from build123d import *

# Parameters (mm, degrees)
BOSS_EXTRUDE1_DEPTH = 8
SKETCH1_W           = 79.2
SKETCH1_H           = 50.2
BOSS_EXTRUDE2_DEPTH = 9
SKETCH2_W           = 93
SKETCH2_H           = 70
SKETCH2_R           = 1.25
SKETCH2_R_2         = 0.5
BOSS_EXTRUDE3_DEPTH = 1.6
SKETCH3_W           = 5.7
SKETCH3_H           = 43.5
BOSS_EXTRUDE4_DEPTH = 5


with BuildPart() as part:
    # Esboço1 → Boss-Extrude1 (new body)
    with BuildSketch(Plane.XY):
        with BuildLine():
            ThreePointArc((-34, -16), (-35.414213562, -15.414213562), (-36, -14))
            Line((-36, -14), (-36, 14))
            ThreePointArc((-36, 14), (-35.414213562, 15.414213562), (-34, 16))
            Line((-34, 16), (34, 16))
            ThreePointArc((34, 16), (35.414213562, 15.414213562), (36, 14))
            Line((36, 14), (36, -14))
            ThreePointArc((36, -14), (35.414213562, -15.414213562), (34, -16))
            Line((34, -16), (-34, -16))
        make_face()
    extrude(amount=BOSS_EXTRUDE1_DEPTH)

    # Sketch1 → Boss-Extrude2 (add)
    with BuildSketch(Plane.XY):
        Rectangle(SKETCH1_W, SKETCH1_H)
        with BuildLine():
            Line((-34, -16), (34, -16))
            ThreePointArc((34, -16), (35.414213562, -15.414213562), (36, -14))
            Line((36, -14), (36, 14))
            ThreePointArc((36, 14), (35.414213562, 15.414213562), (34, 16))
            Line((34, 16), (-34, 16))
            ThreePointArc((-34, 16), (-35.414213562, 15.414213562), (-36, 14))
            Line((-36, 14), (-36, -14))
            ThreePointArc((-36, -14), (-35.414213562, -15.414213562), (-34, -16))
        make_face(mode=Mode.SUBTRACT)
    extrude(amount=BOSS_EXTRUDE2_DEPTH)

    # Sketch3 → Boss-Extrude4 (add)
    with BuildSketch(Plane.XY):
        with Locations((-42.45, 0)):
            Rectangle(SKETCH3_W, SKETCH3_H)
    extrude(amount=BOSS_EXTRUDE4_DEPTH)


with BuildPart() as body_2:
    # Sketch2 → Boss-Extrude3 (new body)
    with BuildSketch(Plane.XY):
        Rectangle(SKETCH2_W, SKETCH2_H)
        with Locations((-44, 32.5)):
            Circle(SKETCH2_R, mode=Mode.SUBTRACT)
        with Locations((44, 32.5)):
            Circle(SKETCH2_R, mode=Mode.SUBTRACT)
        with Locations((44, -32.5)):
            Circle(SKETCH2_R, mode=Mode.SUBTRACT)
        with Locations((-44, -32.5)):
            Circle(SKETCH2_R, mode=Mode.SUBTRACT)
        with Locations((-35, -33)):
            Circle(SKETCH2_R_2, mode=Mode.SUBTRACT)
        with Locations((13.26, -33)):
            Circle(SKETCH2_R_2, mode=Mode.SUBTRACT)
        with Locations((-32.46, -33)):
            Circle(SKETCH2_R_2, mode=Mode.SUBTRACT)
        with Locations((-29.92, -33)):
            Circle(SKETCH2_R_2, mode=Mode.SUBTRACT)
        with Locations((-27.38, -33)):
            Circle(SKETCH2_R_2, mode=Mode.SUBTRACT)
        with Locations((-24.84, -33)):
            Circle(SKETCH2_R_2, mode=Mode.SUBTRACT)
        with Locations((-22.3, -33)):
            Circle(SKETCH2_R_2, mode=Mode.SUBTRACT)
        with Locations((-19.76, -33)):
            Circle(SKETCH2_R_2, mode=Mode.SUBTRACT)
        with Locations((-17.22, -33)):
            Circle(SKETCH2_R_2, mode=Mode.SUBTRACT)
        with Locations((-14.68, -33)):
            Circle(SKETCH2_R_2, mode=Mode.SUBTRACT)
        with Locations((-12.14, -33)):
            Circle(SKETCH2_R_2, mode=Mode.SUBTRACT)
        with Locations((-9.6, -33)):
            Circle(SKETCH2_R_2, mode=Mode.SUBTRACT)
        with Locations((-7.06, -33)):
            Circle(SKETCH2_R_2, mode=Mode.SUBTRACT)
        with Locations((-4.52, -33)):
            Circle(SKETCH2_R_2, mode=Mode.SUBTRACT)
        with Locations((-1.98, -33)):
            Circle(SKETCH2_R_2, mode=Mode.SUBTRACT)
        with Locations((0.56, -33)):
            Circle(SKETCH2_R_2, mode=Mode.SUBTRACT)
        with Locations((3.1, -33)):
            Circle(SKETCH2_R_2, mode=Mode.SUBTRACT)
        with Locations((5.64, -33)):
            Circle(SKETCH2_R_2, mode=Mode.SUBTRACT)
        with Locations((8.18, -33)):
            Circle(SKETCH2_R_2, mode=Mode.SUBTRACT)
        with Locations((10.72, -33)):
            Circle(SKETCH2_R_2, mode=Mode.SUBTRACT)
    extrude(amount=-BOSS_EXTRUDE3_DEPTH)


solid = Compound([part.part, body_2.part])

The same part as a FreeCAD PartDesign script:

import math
import FreeCAD as App
import Part
import Sketcher
from FreeCAD import Vector
Q = App.Units.Quantity


def add_polygon(sketch, points):
    """Adds a closed chain of lines whose ends are joined by coincident constraints."""
    first, n = sketch.GeometryCount, len(points)
    for a, b in zip(points, points[1:] + points[:1]):
        sketch.addGeometry(Part.LineSegment(App.Vector(*a, 0), App.Vector(*b, 0)), False)
    for i in range(n):
        sketch.addConstraint(Sketcher.Constraint("Coincident", first + i, 2, first + (i + 1) % n, 1))

doc = App.newDocument("Part")
body = doc.addObject("PartDesign::Body", "Body")

# Sketch on XY plane
sketch1 = body.newObject("Sketcher::SketchObject", "Sketch")
sketch1.AttachmentSupport = (doc.getObject("XY_Plane"), [""])
sketch1.MapMode = "FlatFace"
sketch1.addGeometry(Part.ArcOfCircle(Part.Circle(Vector(-34, -14, 0), Vector(0, 0, 1), 2), math.radians(-180), math.radians(-90)), False)
sketch1.addGeometry(Part.LineSegment(Vector(-34, -16, 0), Vector(34, -16, 0)), False)
sketch1.addGeometry(Part.ArcOfCircle(Part.Circle(Vector(34, -14, 0), Vector(0, 0, 1), 2), math.radians(-90), math.radians(0)), False)
sketch1.addGeometry(Part.LineSegment(Vector(36, -14, 0), Vector(36, 14, 0)), False)
sketch1.addGeometry(Part.ArcOfCircle(Part.Circle(Vector(34, 14, 0), Vector(0, 0, 1), 2), math.radians(0), math.radians(90)), False)
sketch1.addGeometry(Part.LineSegment(Vector(34, 16, 0), Vector(-34, 16, 0)), False)
sketch1.addGeometry(Part.ArcOfCircle(Part.Circle(Vector(-34, 14, 0), Vector(0, 0, 1), 2), math.radians(90), math.radians(180)), False)
sketch1.addGeometry(Part.LineSegment(Vector(-36, 14, 0), Vector(-36, -14, 0)), False)
sketch1.addConstraint(Sketcher.Constraint("Tangent", 0, 2, 1, 1))
sketch1.addConstraint(Sketcher.Constraint("Tangent", 1, 2, 2, 1))
sketch1.addConstraint(Sketcher.Constraint("Tangent", 2, 2, 3, 1))
sketch1.addConstraint(Sketcher.Constraint("Tangent", 3, 2, 4, 1))
sketch1.addConstraint(Sketcher.Constraint("Tangent", 4, 2, 5, 1))
sketch1.addConstraint(Sketcher.Constraint("Tangent", 5, 2, 6, 1))
sketch1.addConstraint(Sketcher.Constraint("Tangent", 6, 2, 7, 1))
sketch1.addConstraint(Sketcher.Constraint("Tangent", 7, 2, 0, 1))
sketch1.addConstraint(Sketcher.Constraint("Horizontal", 1))
sketch1.addConstraint(Sketcher.Constraint("Vertical", 3))
sketch1.addConstraint(Sketcher.Constraint("Horizontal", 5))
sketch1.addConstraint(Sketcher.Constraint("Vertical", 7))
sketch1.addConstraint(Sketcher.Constraint("Equal", 0, 2))
sketch1.addConstraint(Sketcher.Constraint("Equal", 2, 4))
sketch1.addConstraint(Sketcher.Constraint("Equal", 4, 6))
sketch1.addConstraint(Sketcher.Constraint("Symmetric", 0, 3, 4, 3, -1, 1))
sketch1.addConstraint(Sketcher.Constraint("Radius", 0, Q("2 mm")))
sketch1.addConstraint(Sketcher.Constraint("DistanceX", 1, 1, 1, 2, Q("68 mm")))
sketch1.addConstraint(Sketcher.Constraint("DistanceY", 3, 1, 3, 2, Q("28 mm")))
pad1 = body.newObject("PartDesign::Pad", "Pad")
pad1.Profile = sketch1
pad1.Length = 8

# Sketch on XY plane
sketch2 = body.newObject("Sketcher::SketchObject", "Sketch001")
sketch2.AttachmentSupport = (doc.getObject("XY_Plane"), [""])
sketch2.MapMode = "FlatFace"
add_polygon(sketch2, [(-39.6, 25.1), (-39.6, -25.1), (39.6, -25.1), (39.6, 25.1)])  # lines 0-3
sketch2.addGeometry(Part.LineSegment(Vector(34, -16, 0), Vector(-34, -16, 0)), False)  # 4
sketch2.addGeometry(Part.ArcOfCircle(Part.Circle(Vector(-34, -14, 0), Vector(0, 0, 1), 2), math.radians(-180), math.radians(-90)), False)  # 5
sketch2.addGeometry(Part.LineSegment(Vector(-36, -14, 0), Vector(-36, 14, 0)), False)  # 6
sketch2.addGeometry(Part.ArcOfCircle(Part.Circle(Vector(-34, 14, 0), Vector(0, 0, 1), 2), math.radians(90), math.radians(180)), False)  # 7
sketch2.addGeometry(Part.LineSegment(Vector(-34, 16, 0), Vector(34, 16, 0)), False)  # 8
sketch2.addGeometry(Part.ArcOfCircle(Part.Circle(Vector(34, 14, 0), Vector(0, 0, 1), 2), math.radians(0), math.radians(90)), False)  # 9
sketch2.addGeometry(Part.LineSegment(Vector(36, 14, 0), Vector(36, -14, 0)), False)  # 10
sketch2.addGeometry(Part.ArcOfCircle(Part.Circle(Vector(34, -14, 0), Vector(0, 0, 1), 2), math.radians(-90), math.radians(0)), False)  # 11
sketch2.addConstraint(Sketcher.Constraint("Tangent", 4, 2, 5, 2))
sketch2.addConstraint(Sketcher.Constraint("Tangent", 5, 1, 6, 1))
sketch2.addConstraint(Sketcher.Constraint("Tangent", 6, 2, 7, 2))
sketch2.addConstraint(Sketcher.Constraint("Tangent", 7, 1, 8, 1))
sketch2.addConstraint(Sketcher.Constraint("Tangent", 8, 2, 9, 2))
sketch2.addConstraint(Sketcher.Constraint("Tangent", 9, 1, 10, 1))
sketch2.addConstraint(Sketcher.Constraint("Tangent", 10, 2, 11, 2))
sketch2.addConstraint(Sketcher.Constraint("Tangent", 11, 1, 4, 1))
sketch2.addConstraint(Sketcher.Constraint("Vertical", 0))
sketch2.addConstraint(Sketcher.Constraint("Horizontal", 1))
sketch2.addConstraint(Sketcher.Constraint("Vertical", 2))
sketch2.addConstraint(Sketcher.Constraint("Horizontal", 3))
sketch2.addConstraint(Sketcher.Constraint("Horizontal", 4))
sketch2.addConstraint(Sketcher.Constraint("Vertical", 6))
sketch2.addConstraint(Sketcher.Constraint("Horizontal", 8))
sketch2.addConstraint(Sketcher.Constraint("Vertical", 10))
sketch2.addConstraint(Sketcher.Constraint("Equal", 5, 7))
sketch2.addConstraint(Sketcher.Constraint("Equal", 7, 9))
sketch2.addConstraint(Sketcher.Constraint("Equal", 9, 11))
sketch2.addConstraint(Sketcher.Constraint("Symmetric", 5, 3, 9, 3, -1, 1))
sketch2.addConstraint(Sketcher.Constraint("Symmetric", 0, 2, 2, 2, -1, 1))
sketch2.addConstraint(Sketcher.Constraint("Radius", 5, Q("2 mm")))
sketch2.addConstraint(Sketcher.Constraint("DistanceX", 4, 2, 4, 1, Q("68 mm")))
sketch2.addConstraint(Sketcher.Constraint("DistanceY", 6, 1, 6, 2, Q("28 mm")))
sketch2.addConstraint(Sketcher.Constraint("DistanceX", 1, 1, 1, 2, Q("79.2 mm")))
sketch2.addConstraint(Sketcher.Constraint("DistanceY", 0, 2, 0, 1, Q("50.2 mm")))
pad2 = body.newObject("PartDesign::Pad", "Pad001")
pad2.Profile = sketch2
pad2.Length = 9

# Sketch on XY plane
sketch3 = body.newObject("Sketcher::SketchObject", "Sketch002")
sketch3.AttachmentSupport = (doc.getObject("XY_Plane"), [""])
sketch3.MapMode = "FlatFace"
add_polygon(sketch3, [(-45, 22), (-45, -22), (-40, -22), (-40, 22)])  # lines 0-3
sketch3.addConstraint(Sketcher.Constraint("Vertical", 0))
sketch3.addConstraint(Sketcher.Constraint("Horizontal", 1))
sketch3.addConstraint(Sketcher.Constraint("Vertical", 2))
sketch3.addConstraint(Sketcher.Constraint("Horizontal", 3))
sketch3.addConstraint(Sketcher.Constraint("DistanceX", 1, 1, 1, 2, Q("5.7 mm")))
sketch3.addConstraint(Sketcher.Constraint("DistanceY", 0, 2, 0, 1, Q("43.5 mm")))
sketch3.addConstraint(Sketcher.Constraint("DistanceX", 0, 2, -1, 1, Q("45.3 mm")))
sketch3.addConstraint(Sketcher.Constraint("DistanceY", 0, 2, -1, 1, Q("21.75 mm")))
pad3 = body.newObject("PartDesign::Pad", "Pad002")
pad3.Profile = sketch3
pad3.Length = 5
body2 = doc.addObject("PartDesign::Body", "Body001")

# Sketch on XY plane
sketch4 = body2.newObject("Sketcher::SketchObject", "Sketch003")
sketch4.AttachmentSupport = (doc.getObject("XY_Plane001"), [""])
sketch4.MapMode = "FlatFace"
add_polygon(sketch4, [(-46.5, 35), (-46.5, -35), (46.5, -35), (46.5, 35)])  # lines 0-3
sketch4.addGeometry(Part.Circle(Vector(-44, -32.5, 0), Vector(0, 0, 1), 1.2), False)  # 4
sketch4.addGeometry(Part.Circle(Vector(-35, -33, 0), Vector(0, 0, 1), 0.5), False)  # 5
sketch4.addGeometry(Part.Circle(Vector(-32.5, -33, 0), Vector(0, 0, 1), 0.5), False)  # 6
sketch4.addGeometry(Part.Circle(Vector(-29.9, -33, 0), Vector(0, 0, 1), 0.5), False)  # 7
sketch4.addGeometry(Part.Circle(Vector(-27.4, -33, 0), Vector(0, 0, 1), 0.5), False)  # 8
sketch4.addGeometry(Part.Circle(Vector(-24.8, -33, 0), Vector(0, 0, 1), 0.5), False)  # 9
sketch4.addGeometry(Part.Circle(Vector(-22.3, -33, 0), Vector(0, 0, 1), 0.5), False)  # 10
sketch4.addGeometry(Part.Circle(Vector(-19.8, -33, 0), Vector(0, 0, 1), 0.5), False)  # 11
sketch4.addGeometry(Part.Circle(Vector(-17.2, -33, 0), Vector(0, 0, 1), 0.5), False)  # 12
sketch4.addGeometry(Part.Circle(Vector(-14.7, -33, 0), Vector(0, 0, 1), 0.5), False)  # 13
sketch4.addGeometry(Part.Circle(Vector(-12.1, -33, 0), Vector(0, 0, 1), 0.5), False)  # 14
sketch4.addGeometry(Part.Circle(Vector(-9.6, -33, 0), Vector(0, 0, 1), 0.5), False)  # 15
sketch4.addGeometry(Part.Circle(Vector(-7.1, -33, 0), Vector(0, 0, 1), 0.5), False)  # 16
sketch4.addGeometry(Part.Circle(Vector(-4.5, -33, 0), Vector(0, 0, 1), 0.5), False)  # 17
sketch4.addGeometry(Part.Circle(Vector(-2, -33, 0), Vector(0, 0, 1), 0.5), False)  # 18
sketch4.addGeometry(Part.Circle(Vector(0.6, -33, 0), Vector(0, 0, 1), 0.5), False)  # 19
sketch4.addGeometry(Part.Circle(Vector(3.1, -33, 0), Vector(0, 0, 1), 0.5), False)  # 20
sketch4.addGeometry(Part.Circle(Vector(5.6, -33, 0), Vector(0, 0, 1), 0.5), False)  # 21
sketch4.addGeometry(Part.Circle(Vector(8.2, -33, 0), Vector(0, 0, 1), 0.5), False)  # 22
sketch4.addGeometry(Part.Circle(Vector(10.7, -33, 0), Vector(0, 0, 1), 0.5), False)  # 23
sketch4.addGeometry(Part.Circle(Vector(13.3, -33, 0), Vector(0, 0, 1), 0.5), False)  # 24
sketch4.addGeometry(Part.Circle(Vector(44, -32.5, 0), Vector(0, 0, 1), 1.2), False)  # 25
sketch4.addGeometry(Part.Circle(Vector(-44, 32.5, 0), Vector(0, 0, 1), 1.2), False)  # 26
sketch4.addGeometry(Part.Circle(Vector(44, 32.5, 0), Vector(0, 0, 1), 1.2), False)  # 27
sketch4.addConstraint(Sketcher.Constraint("Vertical", 0))
sketch4.addConstraint(Sketcher.Constraint("Horizontal", 1))
sketch4.addConstraint(Sketcher.Constraint("Vertical", 2))
sketch4.addConstraint(Sketcher.Constraint("Horizontal", 3))
sketch4.addConstraint(Sketcher.Constraint("Equal", 5, 6))
sketch4.addConstraint(Sketcher.Constraint("Equal", 6, 7))
sketch4.addConstraint(Sketcher.Constraint("Equal", 7, 8))
sketch4.addConstraint(Sketcher.Constraint("Equal", 8, 9))
sketch4.addConstraint(Sketcher.Constraint("Equal", 9, 10))
sketch4.addConstraint(Sketcher.Constraint("Equal", 10, 11))
sketch4.addConstraint(Sketcher.Constraint("Equal", 11, 12))
sketch4.addConstraint(Sketcher.Constraint("Equal", 12, 13))
sketch4.addConstraint(Sketcher.Constraint("Equal", 13, 14))
sketch4.addConstraint(Sketcher.Constraint("Equal", 14, 15))
sketch4.addConstraint(Sketcher.Constraint("Equal", 15, 16))
sketch4.addConstraint(Sketcher.Constraint("Equal", 16, 17))
sketch4.addConstraint(Sketcher.Constraint("Equal", 17, 18))
sketch4.addConstraint(Sketcher.Constraint("Equal", 18, 19))
sketch4.addConstraint(Sketcher.Constraint("Equal", 19, 20))
sketch4.addConstraint(Sketcher.Constraint("Equal", 20, 21))
sketch4.addConstraint(Sketcher.Constraint("Equal", 21, 22))
sketch4.addConstraint(Sketcher.Constraint("Equal", 22, 23))
sketch4.addConstraint(Sketcher.Constraint("Equal", 23, 24))
sketch4.addConstraint(Sketcher.Constraint("Equal", 4, 25))
sketch4.addConstraint(Sketcher.Constraint("Equal", 25, 26))
sketch4.addConstraint(Sketcher.Constraint("Equal", 26, 27))
sketch4.addConstraint(Sketcher.Constraint("Symmetric", 25, 3, 26, 3, -1, 1))
sketch4.addConstraint(Sketcher.Constraint("Symmetric", 4, 3, 27, 3, -1, 1))
sketch4.addConstraint(Sketcher.Constraint("Symmetric", 0, 2, 2, 2, -1, 1))
sketch4.addConstraint(Sketcher.Constraint("Symmetric", 4, 3, 25, 3, -2))
sketch4.addConstraint(Sketcher.Constraint("Horizontal", 5, 3, 6, 3))
sketch4.addConstraint(Sketcher.Constraint("Horizontal", 6, 3, 7, 3))
sketch4.addConstraint(Sketcher.Constraint("Horizontal", 7, 3, 8, 3))
sketch4.addConstraint(Sketcher.Constraint("Horizontal", 8, 3, 9, 3))
sketch4.addConstraint(Sketcher.Constraint("Horizontal", 9, 3, 10, 3))
sketch4.addConstraint(Sketcher.Constraint("Horizontal", 10, 3, 11, 3))
sketch4.addConstraint(Sketcher.Constraint("Horizontal", 11, 3, 12, 3))
sketch4.addConstraint(Sketcher.Constraint("Horizontal", 12, 3, 13, 3))
sketch4.addConstraint(Sketcher.Constraint("Horizontal", 13, 3, 14, 3))
sketch4.addConstraint(Sketcher.Constraint("Horizontal", 14, 3, 15, 3))
sketch4.addConstraint(Sketcher.Constraint("Horizontal", 15, 3, 16, 3))
sketch4.addConstraint(Sketcher.Constraint("Horizontal", 16, 3, 17, 3))
sketch4.addConstraint(Sketcher.Constraint("Horizontal", 17, 3, 18, 3))
sketch4.addConstraint(Sketcher.Constraint("Horizontal", 18, 3, 19, 3))
sketch4.addConstraint(Sketcher.Constraint("Horizontal", 19, 3, 20, 3))
sketch4.addConstraint(Sketcher.Constraint("Horizontal", 20, 3, 21, 3))
sketch4.addConstraint(Sketcher.Constraint("Horizontal", 21, 3, 22, 3))
sketch4.addConstraint(Sketcher.Constraint("Horizontal", 22, 3, 23, 3))
sketch4.addConstraint(Sketcher.Constraint("Horizontal", 23, 3, 24, 3))
sketch4.addConstraint(Sketcher.Constraint("Diameter", 5, Q("1 mm")))
sketch4.addConstraint(Sketcher.Constraint("Diameter", 4, Q("2.5 mm")))
sketch4.addConstraint(Sketcher.Constraint("DistanceX", 1, 1, 1, 2, Q("93 mm")))
sketch4.addConstraint(Sketcher.Constraint("DistanceY", 0, 2, 0, 1, Q("70 mm")))
sketch4.addConstraint(Sketcher.Constraint("DistanceX", 4, 3, -1, 1, Q("44 mm")))
sketch4.addConstraint(Sketcher.Constraint("DistanceX", 5, 3, -1, 1, Q("35 mm")))
sketch4.addConstraint(Sketcher.Constraint("DistanceY", 5, 3, -1, 1, Q("33 mm")))
sketch4.addConstraint(Sketcher.Constraint("DistanceY", 4, 3, 26, 3, Q("65 mm")))
sketch4.addConstraint(Sketcher.Constraint("DistanceX", 10, 3, -1, 1, Q("22.3 mm")))
sketch4.addConstraint(Sketcher.Constraint("DistanceX", 15, 3, -1, 1, Q("9.6 mm")))
sketch4.addConstraint(Sketcher.Constraint("DistanceX", -1, 1, 20, 3, Q("3.1 mm")))
sketch4.addConstraint(Sketcher.Constraint("DistanceX", 6, 3, 11, 3, Q("12.7 mm")))
sketch4.addConstraint(Sketcher.Constraint("DistanceX", 7, 3, 12, 3, Q("12.7 mm")))
sketch4.addConstraint(Sketcher.Constraint("DistanceX", 8, 3, 13, 3, Q("12.7 mm")))
sketch4.addConstraint(Sketcher.Constraint("DistanceX", 9, 3, 14, 3, Q("12.7 mm")))
sketch4.addConstraint(Sketcher.Constraint("DistanceX", 11, 3, 16, 3, Q("12.7 mm")))
sketch4.addConstraint(Sketcher.Constraint("DistanceX", 12, 3, 17, 3, Q("12.7 mm")))
sketch4.addConstraint(Sketcher.Constraint("DistanceX", 13, 3, 18, 3, Q("12.7 mm")))
sketch4.addConstraint(Sketcher.Constraint("DistanceX", 14, 3, 19, 3, Q("12.7 mm")))
sketch4.addConstraint(Sketcher.Constraint("DistanceX", 16, 3, 21, 3, Q("12.7 mm")))
sketch4.addConstraint(Sketcher.Constraint("DistanceX", 17, 3, 22, 3, Q("12.7 mm")))
sketch4.addConstraint(Sketcher.Constraint("DistanceX", 18, 3, 23, 3, Q("12.7 mm")))
sketch4.addConstraint(Sketcher.Constraint("DistanceX", 19, 3, 24, 3, Q("12.7 mm")))
sketch4.addConstraint(Sketcher.Constraint("DistanceX", 6, 3, -1, 1, Q("32.46 mm")))
sketch4.addConstraint(Sketcher.Constraint("DistanceX", 7, 3, -1, 1, Q("29.92 mm")))
sketch4.addConstraint(Sketcher.Constraint("DistanceX", 8, 3, -1, 1, Q("27.38 mm")))
sketch4.addConstraint(Sketcher.Constraint("DistanceX", 9, 3, -1, 1, Q("24.84 mm")))
pad4 = body2.newObject("PartDesign::Pad", "Pad003")
pad4.Profile = sketch4
pad4.Length = 1.6
pad4.Reversed = True

doc.recompute()
